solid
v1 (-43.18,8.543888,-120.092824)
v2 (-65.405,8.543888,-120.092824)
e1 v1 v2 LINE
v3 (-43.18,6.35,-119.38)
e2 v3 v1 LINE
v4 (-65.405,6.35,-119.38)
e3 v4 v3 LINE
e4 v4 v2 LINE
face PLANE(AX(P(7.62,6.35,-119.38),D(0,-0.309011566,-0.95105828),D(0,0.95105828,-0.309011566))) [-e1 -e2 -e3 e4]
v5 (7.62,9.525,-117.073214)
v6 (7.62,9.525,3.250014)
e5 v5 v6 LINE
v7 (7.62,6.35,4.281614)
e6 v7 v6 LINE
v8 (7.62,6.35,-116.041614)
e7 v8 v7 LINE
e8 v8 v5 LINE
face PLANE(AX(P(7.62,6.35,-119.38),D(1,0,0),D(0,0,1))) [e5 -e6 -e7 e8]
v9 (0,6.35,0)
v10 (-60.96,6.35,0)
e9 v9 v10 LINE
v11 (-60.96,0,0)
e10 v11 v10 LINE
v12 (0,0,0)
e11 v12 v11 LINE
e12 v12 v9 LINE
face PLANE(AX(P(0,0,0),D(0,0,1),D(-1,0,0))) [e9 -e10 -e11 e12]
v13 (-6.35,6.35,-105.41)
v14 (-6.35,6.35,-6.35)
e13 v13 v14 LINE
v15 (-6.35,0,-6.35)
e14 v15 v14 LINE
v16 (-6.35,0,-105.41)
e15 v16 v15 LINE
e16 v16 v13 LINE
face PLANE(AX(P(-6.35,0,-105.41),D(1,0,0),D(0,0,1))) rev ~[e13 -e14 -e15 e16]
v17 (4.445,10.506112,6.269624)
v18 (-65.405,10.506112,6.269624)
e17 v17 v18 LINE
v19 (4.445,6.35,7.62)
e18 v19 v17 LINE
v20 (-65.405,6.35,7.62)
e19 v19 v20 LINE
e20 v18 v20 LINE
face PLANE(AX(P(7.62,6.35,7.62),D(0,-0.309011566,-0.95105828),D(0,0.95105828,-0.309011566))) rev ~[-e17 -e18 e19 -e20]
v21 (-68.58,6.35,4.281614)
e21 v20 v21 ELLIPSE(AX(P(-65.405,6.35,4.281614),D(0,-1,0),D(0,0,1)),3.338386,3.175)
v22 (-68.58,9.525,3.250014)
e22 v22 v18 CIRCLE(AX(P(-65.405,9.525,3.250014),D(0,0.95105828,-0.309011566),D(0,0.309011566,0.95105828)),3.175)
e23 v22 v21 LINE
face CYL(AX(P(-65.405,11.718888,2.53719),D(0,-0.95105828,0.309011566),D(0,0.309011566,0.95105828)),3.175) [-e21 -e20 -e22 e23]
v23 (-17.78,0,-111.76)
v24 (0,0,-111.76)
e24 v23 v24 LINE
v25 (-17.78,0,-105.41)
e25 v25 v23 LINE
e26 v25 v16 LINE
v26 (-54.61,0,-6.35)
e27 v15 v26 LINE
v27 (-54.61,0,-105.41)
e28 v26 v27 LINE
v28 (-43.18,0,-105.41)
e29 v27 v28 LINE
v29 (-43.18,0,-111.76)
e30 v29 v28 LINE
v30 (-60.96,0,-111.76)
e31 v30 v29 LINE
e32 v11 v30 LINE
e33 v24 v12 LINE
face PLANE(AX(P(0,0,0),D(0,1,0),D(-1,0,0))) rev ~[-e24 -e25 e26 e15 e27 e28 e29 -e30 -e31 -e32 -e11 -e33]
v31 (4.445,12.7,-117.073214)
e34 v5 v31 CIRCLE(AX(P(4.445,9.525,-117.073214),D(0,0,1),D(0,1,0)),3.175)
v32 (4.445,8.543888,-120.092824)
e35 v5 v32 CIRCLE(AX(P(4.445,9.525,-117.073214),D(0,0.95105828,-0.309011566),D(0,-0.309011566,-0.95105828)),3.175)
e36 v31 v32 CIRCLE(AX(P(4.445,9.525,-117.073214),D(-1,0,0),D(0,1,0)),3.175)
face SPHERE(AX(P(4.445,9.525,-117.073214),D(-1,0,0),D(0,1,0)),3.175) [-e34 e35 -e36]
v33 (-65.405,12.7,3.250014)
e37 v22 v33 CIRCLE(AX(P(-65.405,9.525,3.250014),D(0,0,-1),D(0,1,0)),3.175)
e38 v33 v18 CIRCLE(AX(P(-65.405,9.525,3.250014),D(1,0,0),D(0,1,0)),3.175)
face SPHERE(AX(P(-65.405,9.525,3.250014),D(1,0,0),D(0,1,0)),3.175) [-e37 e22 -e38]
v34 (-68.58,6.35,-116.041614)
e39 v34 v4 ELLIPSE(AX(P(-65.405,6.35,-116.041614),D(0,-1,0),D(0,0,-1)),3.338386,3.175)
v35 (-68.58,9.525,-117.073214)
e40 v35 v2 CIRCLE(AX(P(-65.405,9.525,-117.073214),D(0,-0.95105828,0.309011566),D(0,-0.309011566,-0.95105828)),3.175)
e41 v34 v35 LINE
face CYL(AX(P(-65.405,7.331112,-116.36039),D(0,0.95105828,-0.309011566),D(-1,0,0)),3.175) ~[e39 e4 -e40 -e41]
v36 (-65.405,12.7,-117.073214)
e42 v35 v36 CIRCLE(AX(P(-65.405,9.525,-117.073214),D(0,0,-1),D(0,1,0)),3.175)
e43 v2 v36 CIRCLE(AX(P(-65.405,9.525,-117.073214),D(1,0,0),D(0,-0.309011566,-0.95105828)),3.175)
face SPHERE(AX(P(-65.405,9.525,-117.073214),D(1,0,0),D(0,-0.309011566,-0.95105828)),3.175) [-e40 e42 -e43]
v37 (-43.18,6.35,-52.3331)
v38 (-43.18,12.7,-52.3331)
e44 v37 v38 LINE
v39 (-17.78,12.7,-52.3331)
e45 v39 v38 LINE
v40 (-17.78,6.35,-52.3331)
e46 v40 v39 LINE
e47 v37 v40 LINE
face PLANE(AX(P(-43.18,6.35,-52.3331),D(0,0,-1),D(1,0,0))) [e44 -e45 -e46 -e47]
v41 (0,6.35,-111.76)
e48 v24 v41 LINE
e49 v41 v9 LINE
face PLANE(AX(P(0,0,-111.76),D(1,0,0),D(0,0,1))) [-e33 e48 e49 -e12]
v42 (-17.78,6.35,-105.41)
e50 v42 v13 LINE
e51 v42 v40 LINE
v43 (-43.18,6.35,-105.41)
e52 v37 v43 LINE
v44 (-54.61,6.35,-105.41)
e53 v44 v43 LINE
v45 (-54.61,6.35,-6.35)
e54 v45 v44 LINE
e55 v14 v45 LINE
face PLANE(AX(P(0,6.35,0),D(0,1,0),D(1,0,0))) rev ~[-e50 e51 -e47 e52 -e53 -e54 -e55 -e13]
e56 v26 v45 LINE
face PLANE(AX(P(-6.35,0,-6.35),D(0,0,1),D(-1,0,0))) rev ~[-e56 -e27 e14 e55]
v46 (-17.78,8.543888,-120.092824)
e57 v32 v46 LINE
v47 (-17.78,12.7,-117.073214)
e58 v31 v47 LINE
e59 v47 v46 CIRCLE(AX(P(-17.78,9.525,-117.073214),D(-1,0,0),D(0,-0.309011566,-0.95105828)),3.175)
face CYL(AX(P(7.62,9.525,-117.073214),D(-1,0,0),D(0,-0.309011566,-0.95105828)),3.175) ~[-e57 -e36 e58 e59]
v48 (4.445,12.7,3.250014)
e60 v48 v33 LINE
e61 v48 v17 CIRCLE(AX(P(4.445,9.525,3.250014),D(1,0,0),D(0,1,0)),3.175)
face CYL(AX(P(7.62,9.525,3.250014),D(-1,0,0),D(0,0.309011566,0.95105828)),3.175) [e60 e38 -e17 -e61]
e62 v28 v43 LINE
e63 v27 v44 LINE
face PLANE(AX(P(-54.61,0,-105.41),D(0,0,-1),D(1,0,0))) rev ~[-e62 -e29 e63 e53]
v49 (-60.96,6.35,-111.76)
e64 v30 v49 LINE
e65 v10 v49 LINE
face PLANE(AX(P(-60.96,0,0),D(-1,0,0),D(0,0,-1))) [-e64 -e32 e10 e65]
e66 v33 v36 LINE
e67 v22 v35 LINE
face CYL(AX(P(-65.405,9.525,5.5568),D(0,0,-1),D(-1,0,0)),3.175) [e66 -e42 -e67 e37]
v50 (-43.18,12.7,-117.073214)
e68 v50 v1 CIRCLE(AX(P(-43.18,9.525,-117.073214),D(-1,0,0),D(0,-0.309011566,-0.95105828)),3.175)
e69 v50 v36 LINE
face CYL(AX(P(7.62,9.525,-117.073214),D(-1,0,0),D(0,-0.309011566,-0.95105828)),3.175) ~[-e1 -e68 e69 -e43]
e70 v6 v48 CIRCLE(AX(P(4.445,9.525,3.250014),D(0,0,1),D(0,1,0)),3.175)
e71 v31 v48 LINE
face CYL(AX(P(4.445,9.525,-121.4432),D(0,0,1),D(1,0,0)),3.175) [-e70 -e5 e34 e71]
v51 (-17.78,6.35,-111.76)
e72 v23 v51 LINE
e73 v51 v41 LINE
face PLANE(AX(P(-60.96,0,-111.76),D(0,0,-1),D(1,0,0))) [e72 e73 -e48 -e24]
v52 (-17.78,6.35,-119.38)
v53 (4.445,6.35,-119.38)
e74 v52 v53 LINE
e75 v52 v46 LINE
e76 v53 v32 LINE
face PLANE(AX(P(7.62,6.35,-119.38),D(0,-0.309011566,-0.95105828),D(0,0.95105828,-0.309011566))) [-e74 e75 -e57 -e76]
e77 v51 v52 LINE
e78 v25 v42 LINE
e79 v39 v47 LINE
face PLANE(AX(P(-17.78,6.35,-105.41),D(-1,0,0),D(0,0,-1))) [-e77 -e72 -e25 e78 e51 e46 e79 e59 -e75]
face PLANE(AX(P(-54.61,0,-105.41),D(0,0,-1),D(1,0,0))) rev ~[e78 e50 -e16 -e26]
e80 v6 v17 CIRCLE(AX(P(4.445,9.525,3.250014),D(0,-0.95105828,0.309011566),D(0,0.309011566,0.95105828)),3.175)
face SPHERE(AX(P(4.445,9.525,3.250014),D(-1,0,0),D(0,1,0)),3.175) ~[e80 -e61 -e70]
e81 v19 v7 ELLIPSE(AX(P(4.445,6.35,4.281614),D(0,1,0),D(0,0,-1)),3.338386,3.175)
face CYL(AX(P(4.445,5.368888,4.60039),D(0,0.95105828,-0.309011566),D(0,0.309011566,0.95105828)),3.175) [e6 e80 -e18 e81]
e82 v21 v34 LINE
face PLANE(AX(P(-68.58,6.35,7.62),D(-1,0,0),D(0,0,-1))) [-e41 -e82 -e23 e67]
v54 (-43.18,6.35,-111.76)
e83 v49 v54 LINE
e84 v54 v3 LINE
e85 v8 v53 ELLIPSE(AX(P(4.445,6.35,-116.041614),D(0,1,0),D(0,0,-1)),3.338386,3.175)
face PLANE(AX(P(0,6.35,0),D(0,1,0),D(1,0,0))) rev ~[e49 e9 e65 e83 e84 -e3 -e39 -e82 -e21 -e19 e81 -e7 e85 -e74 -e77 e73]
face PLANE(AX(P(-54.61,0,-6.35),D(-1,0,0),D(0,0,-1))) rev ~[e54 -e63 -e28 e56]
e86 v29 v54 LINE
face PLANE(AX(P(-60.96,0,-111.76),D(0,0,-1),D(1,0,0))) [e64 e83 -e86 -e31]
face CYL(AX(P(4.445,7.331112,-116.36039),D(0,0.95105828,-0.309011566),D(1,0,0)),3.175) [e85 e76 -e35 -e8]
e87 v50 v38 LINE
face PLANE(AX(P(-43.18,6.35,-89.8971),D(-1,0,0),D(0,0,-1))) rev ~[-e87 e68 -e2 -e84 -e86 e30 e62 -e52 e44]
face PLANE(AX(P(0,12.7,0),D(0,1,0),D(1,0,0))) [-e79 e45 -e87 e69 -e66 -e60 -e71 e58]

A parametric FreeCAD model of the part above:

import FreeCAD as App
import Part
import Sketcher
Q = App.Units.Quantity


def edges_at(feature, points):
    """Names of the edges that pass closest to the given points."""
    edges = feature.Shape.Edges
    near = lambda p: min(range(len(edges)), key=lambda i: edges[i].distToShape(Part.Vertex(*p))[0])
    return sorted({f"Edge{near(p) + 1}" for p in points})


def add_polygon(sketch, points):
    """Adds a closed chain of lines whose ends are joined by coincident constraints."""
    first, n = sketch.GeometryCount, len(points)
    for a, b in zip(points, points[1:] + points[:1]):
        sketch.addGeometry(Part.LineSegment(App.Vector(*a, 0), App.Vector(*b, 0)), False)
    for i in range(n):
        sketch.addConstraint(Sketcher.Constraint("Coincident", first + i, 2, first + (i + 1) % n, 1))

doc = App.newDocument("Part")
params = doc.addObject("Spreadsheet::Sheet", "Params")
for row, (alias, value) in enumerate([
    ("sketch1_width", "2.4 in"),
    ("sketch1_height", "4.4 in"),
    ("pad1_length", "0.25 in"),
    ("sketch2_width", "3 in"),
    ("sketch2_height", "5 in"),
    ("pad2_length", "0.25 in"),
    ("sketch3_width", "0.25 in"),
    ("pad3_length", "3 in"),
    ("sketch4_width", "0.25 in"),
    ("fillet_radius", "0.125 in"),
    ("sketch5_width", "1.9 in"),
    ("sketch5_height", "3.9 in"),
    ("pocket2_length", "0.25 in"),
    ("sketch6_width", "1 in"),
    ("sketch6_height", "0.25 in"),
    ("pocket3_length", "0.25 in"),
    ("sketch7_width", "1 in"),
    ("pocket4_length", "1 in"),
    ("sketch8_width", "1 in"),
    ("pocket5_length", "1 in"),
], start=1):
    params.set(f"A{row}", alias)
    params.set(f"B{row}", "=" + value)
    params.setAlias(f"B{row}", alias)

body = doc.addObject("PartDesign::Body", "Body")

# Sketch on XZ plane
sketch1 = body.newObject("Sketcher::SketchObject", "Sketch")
sketch1.AttachmentSupport = (doc.getObject("XZ_Plane"), [""])
sketch1.MapMode = "FlatFace"
add_polygon(sketch1, [(-61, 0), (0, 0), (0, -112), (-61, -112)])  # lines 0-3
sketch1.addConstraint(Sketcher.Constraint("Horizontal", 0))
sketch1.addConstraint(Sketcher.Constraint("Vertical", 1))
sketch1.addConstraint(Sketcher.Constraint("Horizontal", 2))
sketch1.addConstraint(Sketcher.Constraint("Vertical", 3))
sketch1.addConstraint(Sketcher.Constraint("Coincident", 0, 2, -1, 1))
sketch1.addConstraint(Sketcher.Constraint("DistanceX", 0, 1, 0, 2, Q("2.4 in")))
sketch1.addConstraint(Sketcher.Constraint("DistanceY", 1, 2, 1, 1, Q("4.4 in")))
sketch1.setExpression("Constraints[9]", "Params.sketch1_width")
sketch1.setExpression("Constraints[10]", "Params.sketch1_height")
pad1 = body.newObject("PartDesign::Pad", "Pad")
pad1.Profile = sketch1
pad1.setExpression("Length", "Params.pad1_length")
pad1.Reversed = True

# Sketch on XZ plane
sketch2 = body.newObject("Sketcher::SketchObject", "Sketch001")
sketch2.AttachmentSupport = (doc.getObject("XZ_Plane"), [""])
sketch2.MapMode = "FlatFace"
sketch2.AttachmentOffset = App.Placement(App.Vector(0, 0, -0.25 * 25.4), App.Rotation())
add_polygon(sketch2, [(-69, 8), (8, 8), (8, -119), (-69, -119)])  # lines 0-3
sketch2.addConstraint(Sketcher.Constraint("Horizontal", 0))
sketch2.addConstraint(Sketcher.Constraint("Vertical", 1))
sketch2.addConstraint(Sketcher.Constraint("Horizontal", 2))
sketch2.addConstraint(Sketcher.Constraint("Vertical", 3))
sketch2.addConstraint(Sketcher.Constraint("DistanceX", -1, 1, 0, 2, Q("0.3 in")))
sketch2.addConstraint(Sketcher.Constraint("DistanceY", -1, 1, 0, 2, Q("0.3 in")))
sketch2.addConstraint(Sketcher.Constraint("DistanceX", 0, 1, 0, 2, Q("3 in")))
sketch2.addConstraint(Sketcher.Constraint("DistanceY", 1, 2, 1, 1, Q("5 in")))
sketch2.setExpression("Constraints[10]", "Params.sketch2_width")
sketch2.setExpression("Constraints[11]", "Params.sketch2_height")
pad2 = body.newObject("PartDesign::Pad", "Pad001")
pad2.Profile = sketch2
pad2.setExpression("Length", "Params.pad2_length")
pad2.Reversed = True

# Sketch on YZ plane
sketch3 = body.newObject("Sketcher::SketchObject", "Sketch002")
sketch3.AttachmentSupport = (doc.getObject("YZ_Plane"), [""])
sketch3.MapMode = "FlatFace"
sketch3.AttachmentOffset = App.Placement(App.Vector(0, 0, 0.3 * 25.4), App.Rotation())
add_polygon(sketch3, [(12.7, -119.4), (6.3, -119.4), (12.7, -121.4)])  # lines 0-2
add_polygon(sketch3, [(12.7, 7.6), (6.3, 7.6), (12.7, 5.6)])  # lines 3-5
sketch3.addConstraint(Sketcher.Constraint("Horizontal", 0))
sketch3.addConstraint(Sketcher.Constraint("Vertical", 2))
sketch3.addConstraint(Sketcher.Constraint("Horizontal", 3))
sketch3.addConstraint(Sketcher.Constraint("Vertical", 5))
sketch3.addConstraint(Sketcher.Constraint("Parallel", 1, 4))
sketch3.addConstraint(Sketcher.Constraint("Vertical", 0, 2, 3, 2))
sketch3.addConstraint(Sketcher.Constraint("Vertical", 2, 2, 4, 2))
sketch3.addConstraint(Sketcher.Constraint("Angle", 1, Q("-17.9997 deg")))
sketch3.addConstraint(Sketcher.Constraint("DistanceY", 0, 2, 3, 2, Q("5 in")))
sketch3.addConstraint(Sketcher.Constraint("DistanceX", 0, 2, 0, 1, Q("0.25 in")))
sketch3.addConstraint(Sketcher.Constraint("DistanceY", 0, 2, -1, 1, Q("4.7 in")))
sketch3.addConstraint(Sketcher.Constraint("DistanceX", -1, 1, 1, 2, Q("0.5 in")))
sketch3.setExpression("Constraints[15]", "Params.sketch3_width")
pad3 = body.newObject("PartDesign::Pad", "Pad002")
pad3.Profile = sketch3
pad3.setExpression("Length", "Params.pad3_length")
pad3.Reversed = True

# Sketch on YZ plane
sketch4 = body.newObject("Sketcher::SketchObject", "Sketch003")
sketch4.AttachmentSupport = (doc.getObject("YZ_Plane"), [""])
sketch4.MapMode = "FlatFace"
sketch4.AttachmentOffset = App.Placement(App.Vector(0, 0, 0.3 * 25.4), App.Rotation())
add_polygon(sketch4, [(12.7, 7.6), (6.3, 7.6), (12.7, 5.6)])  # lines 0-2
sketch4.addConstraint(Sketcher.Constraint("Horizontal", 0))
sketch4.addConstraint(Sketcher.Constraint("Vertical", 2))
sketch4.addConstraint(Sketcher.Constraint("Angle", 1, Q("-17.9997 deg")))
sketch4.addConstraint(Sketcher.Constraint("DistanceX", 0, 2, 0, 1, Q("0.25 in")))
sketch4.addConstraint(Sketcher.Constraint("DistanceY", -1, 1, 0, 2, Q("0.3 in")))
sketch4.addConstraint(Sketcher.Constraint("DistanceX", -1, 1, 1, 2, Q("0.5 in")))
sketch4.setExpression("Constraints[6]", "Params.sketch4_width")
pocket1 = body.newObject("PartDesign::Pocket", "Pocket")
pocket1.Profile = sketch4
pocket1.Type = "ThroughAll"
doc.recompute()

fillet = body.newObject("PartDesign::Fillet", "Fillet")
fillet.Base = (pocket1, edges_at(pocket1, [
    (-68.58, 12.7, -57.943),
    (-30.48, 12.7, -121.443),
    (7.62, 12.7, -57.943),
    (-68.58, 9.525, -120.412),
    (7.62, 9.525, -120.412),
    (7.62, 9.525, 6.588),
    (-68.58, 9.525, 6.588),
    (-30.48, 12.7, 5.557),
]))
fillet.setExpression("Radius", "Params.fillet_radius")

# Sketch on XZ plane
sketch5 = body.newObject("Sketcher::SketchObject", "Sketch004")
sketch5.AttachmentSupport = (doc.getObject("XZ_Plane"), [""])
sketch5.MapMode = "FlatFace"
add_polygon(sketch5, [(-6, -105), (-6, -6), (-55, -6), (-55, -105)])  # lines 0-3
sketch5.addConstraint(Sketcher.Constraint("Vertical", 0))
sketch5.addConstraint(Sketcher.Constraint("Horizontal", 1))
sketch5.addConstraint(Sketcher.Constraint("Vertical", 2))
sketch5.addConstraint(Sketcher.Constraint("Horizontal", 3))
sketch5.addConstraint(Sketcher.Constraint("DistanceX", 0, 2, -1, 1, Q("0.25 in")))
sketch5.addConstraint(Sketcher.Constraint("DistanceY", 0, 2, -1, 1, Q("0.25 in")))
sketch5.addConstraint(Sketcher.Constraint("DistanceX", 1, 2, 1, 1, Q("1.9 in")))
sketch5.addConstraint(Sketcher.Constraint("DistanceY", 0, 1, 0, 2, Q("3.9 in")))
sketch5.setExpression("Constraints[10]", "Params.sketch5_width")
sketch5.setExpression("Constraints[11]", "Params.sketch5_height")
pocket2 = body.newObject("PartDesign::Pocket", "Pocket001")
pocket2.Profile = sketch5
pocket2.setExpression("Length", "Params.pocket2_length")

# Sketch on XZ plane
sketch6 = body.newObject("Sketcher::SketchObject", "Sketch005")
sketch6.AttachmentSupport = (doc.getObject("XZ_Plane"), [""])
sketch6.MapMode = "FlatFace"
add_polygon(sketch6, [(-43, -105), (-43, -112), (-18, -112), (-18, -105)])  # lines 0-3
sketch6.addConstraint(Sketcher.Constraint("Vertical", 0))
sketch6.addConstraint(Sketcher.Constraint("Horizontal", 1))
sketch6.addConstraint(Sketcher.Constraint("Vertical", 2))
sketch6.addConstraint(Sketcher.Constraint("Horizontal", 3))
sketch6.addConstraint(Sketcher.Constraint("DistanceX", 1, 1, 1, 2, Q("1 in")))
sketch6.addConstraint(Sketcher.Constraint("DistanceY", 0, 2, 0, 1, Q("0.25 in")))
sketch6.addConstraint(Sketcher.Constraint("DistanceX", 0, 2, -1, 1, Q("1.7 in")))
sketch6.addConstraint(Sketcher.Constraint("DistanceY", 0, 2, -1, 1, Q("4.4 in")))
sketch6.setExpression("Constraints[8]", "Params.sketch6_width")
sketch6.setExpression("Constraints[9]", "Params.sketch6_height")
pocket3 = body.newObject("PartDesign::Pocket", "Pocket002")
pocket3.Profile = sketch6
pocket3.setExpression("Length", "Params.pocket3_length")

# Sketch on XZ plane
sketch7 = body.newObject("Sketcher::SketchObject", "Sketch006")
sketch7.AttachmentSupport = (doc.getObject("XZ_Plane"), [""])
sketch7.MapMode = "FlatFace"
sketch7.AttachmentOffset = App.Placement(App.Vector(0, 0, -0.25 * 25.4), App.Rotation())
add_polygon(sketch7, [(-18, -90), (-43, -90), (-43, -142), (-18, -142)])  # lines 0-3
sketch7.addConstraint(Sketcher.Constraint("Horizontal", 0))
sketch7.addConstraint(Sketcher.Constraint("Vertical", 1))
sketch7.addConstraint(Sketcher.Constraint("Horizontal", 2))
sketch7.addConstraint(Sketcher.Constraint("Vertical", 3))
sketch7.addConstraint(Sketcher.Constraint("DistanceX", 0, 2, 0, 1, Q("1 in")))
sketch7.addConstraint(Sketcher.Constraint("DistanceX", 0, 2, -1, 1, Q("1.7 in")))
sketch7.addConstraint(Sketcher.Constraint("DistanceY", 1, 2, 1, 1, Q("2.0558 in")))
sketch7.addConstraint(Sketcher.Constraint("DistanceY", 0, 2, -1, 1, 89.897))
sketch7.setExpression("Constraints[8]", "Params.sketch7_width")
pocket4 = body.newObject("PartDesign::Pocket", "Pocket003")
pocket4.Profile = sketch7
pocket4.setExpression("Length", "Params.pocket4_length")

# Sketch on XZ plane
sketch8 = body.newObject("Sketcher::SketchObject", "Sketch007")
sketch8.AttachmentSupport = (doc.getObject("XZ_Plane"), [""])
sketch8.MapMode = "FlatFace"
sketch8.AttachmentOffset = App.Placement(App.Vector(0, 0, -0.25 * 25.4), App.Rotation())
add_polygon(sketch8, [(-43, -52), (-43, -90), (-18, -90), (-18, -52)])  # lines 0-3
sketch8.addConstraint(Sketcher.Constraint("Vertical", 0))
sketch8.addConstraint(Sketcher.Constraint("Horizontal", 1))
sketch8.addConstraint(Sketcher.Constraint("Vertical", 2))
sketch8.addConstraint(Sketcher.Constraint("Horizontal", 3))
sketch8.addConstraint(Sketcher.Constraint("DistanceX", 1, 1, 1, 2, Q("1 in")))
sketch8.addConstraint(Sketcher.Constraint("DistanceX", 0, 2, -1, 1, Q("1.7 in")))
sketch8.addConstraint(Sketcher.Constraint("DistanceY", 0, 2, 0, 1, Q("1.4789 in")))
sketch8.addConstraint(Sketcher.Constraint("DistanceY", 0, 2, -1, 1, 89.897))
sketch8.setExpression("Constraints[8]", "Params.sketch8_width")
pocket5 = body.newObject("PartDesign::Pocket", "Pocket004")
pocket5.Profile = sketch8
pocket5.setExpression("Length", "Params.pocket5_length")

doc.recompute()
